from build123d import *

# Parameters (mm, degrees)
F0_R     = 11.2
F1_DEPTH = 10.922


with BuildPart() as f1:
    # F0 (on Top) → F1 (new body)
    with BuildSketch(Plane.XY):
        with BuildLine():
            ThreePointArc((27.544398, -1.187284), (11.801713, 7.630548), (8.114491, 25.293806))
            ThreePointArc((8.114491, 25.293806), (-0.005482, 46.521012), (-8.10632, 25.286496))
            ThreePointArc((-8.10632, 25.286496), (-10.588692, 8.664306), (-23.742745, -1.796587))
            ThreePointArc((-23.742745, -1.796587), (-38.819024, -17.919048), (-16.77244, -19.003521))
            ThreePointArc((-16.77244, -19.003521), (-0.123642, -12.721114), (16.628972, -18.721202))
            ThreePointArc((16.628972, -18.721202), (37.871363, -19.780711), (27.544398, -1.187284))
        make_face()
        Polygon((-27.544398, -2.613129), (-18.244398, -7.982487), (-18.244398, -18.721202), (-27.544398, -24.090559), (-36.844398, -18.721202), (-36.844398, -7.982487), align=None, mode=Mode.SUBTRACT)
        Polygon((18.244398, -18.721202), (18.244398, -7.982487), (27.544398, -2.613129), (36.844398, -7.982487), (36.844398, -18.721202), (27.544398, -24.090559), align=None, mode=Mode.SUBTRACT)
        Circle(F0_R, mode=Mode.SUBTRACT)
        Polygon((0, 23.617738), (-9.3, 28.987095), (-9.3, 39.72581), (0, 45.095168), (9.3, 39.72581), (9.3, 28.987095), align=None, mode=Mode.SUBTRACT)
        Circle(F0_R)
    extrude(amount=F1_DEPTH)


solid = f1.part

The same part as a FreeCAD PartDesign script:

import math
import FreeCAD as App
import Part
import Sketcher

V = App.Vector
Q = App.Units.Quantity


def add_polygon(sketch, points):
    """Adds a closed chain of lines whose ends are joined by coincident constraints."""
    first, n = sketch.GeometryCount, len(points)
    for a, b in zip(points, points[1:] + points[:1]):
        sketch.addGeometry(Part.LineSegment(App.Vector(*a, 0), App.Vector(*b, 0)), False)
    for i in range(n):
        sketch.addConstraint(Sketcher.Constraint("Coincident", first + i, 2, first + (i + 1) % n, 1))

doc = App.newDocument("Part")
params = doc.addObject("Spreadsheet::Sheet", "Params")
for row, (alias, value) in enumerate([
    ("pad1_length", "0.43 in"),
], start=1):
    params.set(f"A{row}", alias)
    params.set(f"B{row}", "=" + value)
    params.setAlias(f"B{row}", alias)

body = doc.addObject("PartDesign::Body", "Body")

sketch1 = body.newObject("Sketcher::SketchObject", "Sketch")
sketch1.AttachmentSupport = (doc.getObject("XY_Plane"), [""])
sketch1.MapMode = "FlatFace"
sketch1.addGeometry(Part.ArcOfCircle(Part.Circle(V(29, 21, 0), V(0, 0, 1), 22), math.radians(167), math.radians(265)), False)
sketch1.addGeometry(Part.ArcOfCircle(Part.Circle(V(0, 34, 0), V(0, 0, 1), 12), math.radians(-48), math.radians(228)), False)
sketch1.addGeometry(Part.ArcOfCircle(Part.Circle(V(-30, 20, 0), V(0, 0, 1), 23), math.radians(-73), math.radians(13)), False)
sketch1.addGeometry(Part.ArcOfCircle(Part.Circle(V(-28, -13, 0), V(0, 0, 1), 12), math.radians(72), math.radians(332)), False)
sketch1.addGeometry(Part.ArcOfCircle(Part.Circle(V(0, -38, 0), V(0, 0, 1), 26), math.radians(50), math.radians(131)), False)
sketch1.addGeometry(Part.ArcOfCircle(Part.Circle(V(28, -13, 0), V(0, 0, 1), 12), math.radians(-154), math.radians(90)), False)
add_polygon(sketch1, [(-37, -8), (-28, -3), (-18, -8), (-18, -19), (-28, -24), (-37, -19)])
add_polygon(sketch1, [(28, -24), (18, -19), (18, -8), (28, -3), (37, -8), (37, -19)])
add_polygon(sketch1, [(9, 29), (0, 24), (-9, 29), (-9, 40), (0, 45), (9, 40)])
sketch1.addConstraint(Sketcher.Constraint("Coincident", 0, 1, 1, 1))
sketch1.addConstraint(Sketcher.Constraint("Coincident", 1, 2, 2, 2))
sketch1.addConstraint(Sketcher.Constraint("Coincident", 2, 1, 3, 1))
sketch1.addConstraint(Sketcher.Constraint("Coincident", 3, 2, 4, 2))
sketch1.addConstraint(Sketcher.Constraint("Coincident", 4, 1, 5, 1))
sketch1.addConstraint(Sketcher.Constraint("Coincident", 5, 2, 0, 2))
sketch1.addConstraint(Sketcher.Constraint("Vertical", 8))
sketch1.addConstraint(Sketcher.Constraint("Vertical", 11))
sketch1.addConstraint(Sketcher.Constraint("Vertical", 13))
sketch1.addConstraint(Sketcher.Constraint("Vertical", 16))
sketch1.addConstraint(Sketcher.Constraint("Vertical", 20))
sketch1.addConstraint(Sketcher.Constraint("Vertical", 23))
sketch1.addConstraint(Sketcher.Constraint("Equal", 1, 3))
sketch1.addConstraint(Sketcher.Constraint("Equal", 3, 5))
sketch1.addConstraint(Sketcher.Constraint("Symmetric", 3, 3, 5, 3, -2))
sketch1.addConstraint(Sketcher.Constraint("Symmetric", 8, 2, 12, 2, -2))
sketch1.addConstraint(Sketcher.Constraint("Symmetric", 6, 2, 14, 2, -2))
sketch1.addConstraint(Sketcher.Constraint("Symmetric", 11, 2, 15, 2, -2))
sketch1.addConstraint(Sketcher.Constraint("Symmetric", 9, 2, 17, 2, -2))
sketch1.addConstraint(Sketcher.Constraint("Symmetric", 20, 2, 22, 2, -2))
sketch1.addConstraint(Sketcher.Constraint("PointOnObject", 1, 3, -2))
sketch1.addConstraint(Sketcher.Constraint("PointOnObject", 18, 2, -2))
sketch1.addConstraint(Sketcher.Constraint("PointOnObject", 21, 2, -2))
sketch1.addConstraint(Sketcher.Constraint("Parallel", 6, 9))
sketch1.addConstraint(Sketcher.Constraint("Parallel", 7, 10))
sketch1.addConstraint(Sketcher.Constraint("Parallel", 10, 12))
sketch1.addConstraint(Sketcher.Constraint("Parallel", 9, 14))
sketch1.addConstraint(Sketcher.Constraint("Parallel", 14, 17))
sketch1.addConstraint(Sketcher.Constraint("Parallel", 17, 18))
sketch1.addConstraint(Sketcher.Constraint("Parallel", 15, 19))
sketch1.addConstraint(Sketcher.Constraint("Parallel", 18, 21))
sketch1.addConstraint(Sketcher.Constraint("Horizontal", 4, 1, 8, 2))
sketch1.addConstraint(Sketcher.Constraint("Horizontal", 8, 2, 10, 2))
sketch1.addConstraint(Sketcher.Constraint("Horizontal", 7, 2, 11, 2))
sketch1.addConstraint(Sketcher.Constraint("Vertical", 3, 3, 6, 2))
sketch1.addConstraint(Sketcher.Constraint("Vertical", 5, 2, 14, 2))
sketch1.addConstraint(Sketcher.Constraint("Equal", 16, 20))
sketch1.addConstraint(Sketcher.Constraint("Equal", 17, 18))
sketch1.addConstraint(Sketcher.Constraint("Angle", 6, Q("30.000002 deg")))
sketch1.addConstraint(Sketcher.Constraint("Radius", 0, 21.774779))
sketch1.addConstraint(Sketcher.Constraint("Radius", 1, 12.164561))
sketch1.addConstraint(Sketcher.Constraint("Radius", 2, 22.922069))
sketch1.addConstraint(Sketcher.Constraint("Radius", 4, 25.779763))
sketch1.addConstraint(Sketcher.Constraint("DistanceY", 4, 3, 0, 3, Q("2.3232999 in")))
sketch1.addConstraint(Sketcher.Constraint("DistanceX", 3, 3, -1, 1, 27.544398))
sketch1.addConstraint(Sketcher.Constraint("DistanceX", 7, 2, -1, 1, 18.244398))
sketch1.addConstraint(Sketcher.Constraint("DistanceX", 3, 3, 0, 3, 56.902101))
sketch1.addConstraint(Sketcher.Constraint("DistanceY", 7, 2, 2, 1, 6.1859))
sketch1.addConstraint(Sketcher.Constraint("DistanceY", 1, 2, 19, 2, 3.700599))
sketch1.addConstraint(Sketcher.Constraint("DistanceY", 8, 2, 8, 1, 10.738715))
sketch1.addConstraint(Sketcher.Constraint("DistanceY", -1, 1, 2, 3, 20.12534))
sketch1.addConstraint(Sketcher.Constraint("DistanceX", -1, 1, 4, 3, 0.094249))
sketch1.addConstraint(Sketcher.Constraint("DistanceX", -1, 1, 0, 1, 8.114491))
sketch1.addConstraint(Sketcher.Constraint("DistanceX", 1, 2, -1, 1, 8.10632))
pad1 = body.newObject("PartDesign::Pad", "Pad")
pad1.Profile = sketch1
pad1.setExpression("Length", "Params.pad1_length")

doc.recompute()
